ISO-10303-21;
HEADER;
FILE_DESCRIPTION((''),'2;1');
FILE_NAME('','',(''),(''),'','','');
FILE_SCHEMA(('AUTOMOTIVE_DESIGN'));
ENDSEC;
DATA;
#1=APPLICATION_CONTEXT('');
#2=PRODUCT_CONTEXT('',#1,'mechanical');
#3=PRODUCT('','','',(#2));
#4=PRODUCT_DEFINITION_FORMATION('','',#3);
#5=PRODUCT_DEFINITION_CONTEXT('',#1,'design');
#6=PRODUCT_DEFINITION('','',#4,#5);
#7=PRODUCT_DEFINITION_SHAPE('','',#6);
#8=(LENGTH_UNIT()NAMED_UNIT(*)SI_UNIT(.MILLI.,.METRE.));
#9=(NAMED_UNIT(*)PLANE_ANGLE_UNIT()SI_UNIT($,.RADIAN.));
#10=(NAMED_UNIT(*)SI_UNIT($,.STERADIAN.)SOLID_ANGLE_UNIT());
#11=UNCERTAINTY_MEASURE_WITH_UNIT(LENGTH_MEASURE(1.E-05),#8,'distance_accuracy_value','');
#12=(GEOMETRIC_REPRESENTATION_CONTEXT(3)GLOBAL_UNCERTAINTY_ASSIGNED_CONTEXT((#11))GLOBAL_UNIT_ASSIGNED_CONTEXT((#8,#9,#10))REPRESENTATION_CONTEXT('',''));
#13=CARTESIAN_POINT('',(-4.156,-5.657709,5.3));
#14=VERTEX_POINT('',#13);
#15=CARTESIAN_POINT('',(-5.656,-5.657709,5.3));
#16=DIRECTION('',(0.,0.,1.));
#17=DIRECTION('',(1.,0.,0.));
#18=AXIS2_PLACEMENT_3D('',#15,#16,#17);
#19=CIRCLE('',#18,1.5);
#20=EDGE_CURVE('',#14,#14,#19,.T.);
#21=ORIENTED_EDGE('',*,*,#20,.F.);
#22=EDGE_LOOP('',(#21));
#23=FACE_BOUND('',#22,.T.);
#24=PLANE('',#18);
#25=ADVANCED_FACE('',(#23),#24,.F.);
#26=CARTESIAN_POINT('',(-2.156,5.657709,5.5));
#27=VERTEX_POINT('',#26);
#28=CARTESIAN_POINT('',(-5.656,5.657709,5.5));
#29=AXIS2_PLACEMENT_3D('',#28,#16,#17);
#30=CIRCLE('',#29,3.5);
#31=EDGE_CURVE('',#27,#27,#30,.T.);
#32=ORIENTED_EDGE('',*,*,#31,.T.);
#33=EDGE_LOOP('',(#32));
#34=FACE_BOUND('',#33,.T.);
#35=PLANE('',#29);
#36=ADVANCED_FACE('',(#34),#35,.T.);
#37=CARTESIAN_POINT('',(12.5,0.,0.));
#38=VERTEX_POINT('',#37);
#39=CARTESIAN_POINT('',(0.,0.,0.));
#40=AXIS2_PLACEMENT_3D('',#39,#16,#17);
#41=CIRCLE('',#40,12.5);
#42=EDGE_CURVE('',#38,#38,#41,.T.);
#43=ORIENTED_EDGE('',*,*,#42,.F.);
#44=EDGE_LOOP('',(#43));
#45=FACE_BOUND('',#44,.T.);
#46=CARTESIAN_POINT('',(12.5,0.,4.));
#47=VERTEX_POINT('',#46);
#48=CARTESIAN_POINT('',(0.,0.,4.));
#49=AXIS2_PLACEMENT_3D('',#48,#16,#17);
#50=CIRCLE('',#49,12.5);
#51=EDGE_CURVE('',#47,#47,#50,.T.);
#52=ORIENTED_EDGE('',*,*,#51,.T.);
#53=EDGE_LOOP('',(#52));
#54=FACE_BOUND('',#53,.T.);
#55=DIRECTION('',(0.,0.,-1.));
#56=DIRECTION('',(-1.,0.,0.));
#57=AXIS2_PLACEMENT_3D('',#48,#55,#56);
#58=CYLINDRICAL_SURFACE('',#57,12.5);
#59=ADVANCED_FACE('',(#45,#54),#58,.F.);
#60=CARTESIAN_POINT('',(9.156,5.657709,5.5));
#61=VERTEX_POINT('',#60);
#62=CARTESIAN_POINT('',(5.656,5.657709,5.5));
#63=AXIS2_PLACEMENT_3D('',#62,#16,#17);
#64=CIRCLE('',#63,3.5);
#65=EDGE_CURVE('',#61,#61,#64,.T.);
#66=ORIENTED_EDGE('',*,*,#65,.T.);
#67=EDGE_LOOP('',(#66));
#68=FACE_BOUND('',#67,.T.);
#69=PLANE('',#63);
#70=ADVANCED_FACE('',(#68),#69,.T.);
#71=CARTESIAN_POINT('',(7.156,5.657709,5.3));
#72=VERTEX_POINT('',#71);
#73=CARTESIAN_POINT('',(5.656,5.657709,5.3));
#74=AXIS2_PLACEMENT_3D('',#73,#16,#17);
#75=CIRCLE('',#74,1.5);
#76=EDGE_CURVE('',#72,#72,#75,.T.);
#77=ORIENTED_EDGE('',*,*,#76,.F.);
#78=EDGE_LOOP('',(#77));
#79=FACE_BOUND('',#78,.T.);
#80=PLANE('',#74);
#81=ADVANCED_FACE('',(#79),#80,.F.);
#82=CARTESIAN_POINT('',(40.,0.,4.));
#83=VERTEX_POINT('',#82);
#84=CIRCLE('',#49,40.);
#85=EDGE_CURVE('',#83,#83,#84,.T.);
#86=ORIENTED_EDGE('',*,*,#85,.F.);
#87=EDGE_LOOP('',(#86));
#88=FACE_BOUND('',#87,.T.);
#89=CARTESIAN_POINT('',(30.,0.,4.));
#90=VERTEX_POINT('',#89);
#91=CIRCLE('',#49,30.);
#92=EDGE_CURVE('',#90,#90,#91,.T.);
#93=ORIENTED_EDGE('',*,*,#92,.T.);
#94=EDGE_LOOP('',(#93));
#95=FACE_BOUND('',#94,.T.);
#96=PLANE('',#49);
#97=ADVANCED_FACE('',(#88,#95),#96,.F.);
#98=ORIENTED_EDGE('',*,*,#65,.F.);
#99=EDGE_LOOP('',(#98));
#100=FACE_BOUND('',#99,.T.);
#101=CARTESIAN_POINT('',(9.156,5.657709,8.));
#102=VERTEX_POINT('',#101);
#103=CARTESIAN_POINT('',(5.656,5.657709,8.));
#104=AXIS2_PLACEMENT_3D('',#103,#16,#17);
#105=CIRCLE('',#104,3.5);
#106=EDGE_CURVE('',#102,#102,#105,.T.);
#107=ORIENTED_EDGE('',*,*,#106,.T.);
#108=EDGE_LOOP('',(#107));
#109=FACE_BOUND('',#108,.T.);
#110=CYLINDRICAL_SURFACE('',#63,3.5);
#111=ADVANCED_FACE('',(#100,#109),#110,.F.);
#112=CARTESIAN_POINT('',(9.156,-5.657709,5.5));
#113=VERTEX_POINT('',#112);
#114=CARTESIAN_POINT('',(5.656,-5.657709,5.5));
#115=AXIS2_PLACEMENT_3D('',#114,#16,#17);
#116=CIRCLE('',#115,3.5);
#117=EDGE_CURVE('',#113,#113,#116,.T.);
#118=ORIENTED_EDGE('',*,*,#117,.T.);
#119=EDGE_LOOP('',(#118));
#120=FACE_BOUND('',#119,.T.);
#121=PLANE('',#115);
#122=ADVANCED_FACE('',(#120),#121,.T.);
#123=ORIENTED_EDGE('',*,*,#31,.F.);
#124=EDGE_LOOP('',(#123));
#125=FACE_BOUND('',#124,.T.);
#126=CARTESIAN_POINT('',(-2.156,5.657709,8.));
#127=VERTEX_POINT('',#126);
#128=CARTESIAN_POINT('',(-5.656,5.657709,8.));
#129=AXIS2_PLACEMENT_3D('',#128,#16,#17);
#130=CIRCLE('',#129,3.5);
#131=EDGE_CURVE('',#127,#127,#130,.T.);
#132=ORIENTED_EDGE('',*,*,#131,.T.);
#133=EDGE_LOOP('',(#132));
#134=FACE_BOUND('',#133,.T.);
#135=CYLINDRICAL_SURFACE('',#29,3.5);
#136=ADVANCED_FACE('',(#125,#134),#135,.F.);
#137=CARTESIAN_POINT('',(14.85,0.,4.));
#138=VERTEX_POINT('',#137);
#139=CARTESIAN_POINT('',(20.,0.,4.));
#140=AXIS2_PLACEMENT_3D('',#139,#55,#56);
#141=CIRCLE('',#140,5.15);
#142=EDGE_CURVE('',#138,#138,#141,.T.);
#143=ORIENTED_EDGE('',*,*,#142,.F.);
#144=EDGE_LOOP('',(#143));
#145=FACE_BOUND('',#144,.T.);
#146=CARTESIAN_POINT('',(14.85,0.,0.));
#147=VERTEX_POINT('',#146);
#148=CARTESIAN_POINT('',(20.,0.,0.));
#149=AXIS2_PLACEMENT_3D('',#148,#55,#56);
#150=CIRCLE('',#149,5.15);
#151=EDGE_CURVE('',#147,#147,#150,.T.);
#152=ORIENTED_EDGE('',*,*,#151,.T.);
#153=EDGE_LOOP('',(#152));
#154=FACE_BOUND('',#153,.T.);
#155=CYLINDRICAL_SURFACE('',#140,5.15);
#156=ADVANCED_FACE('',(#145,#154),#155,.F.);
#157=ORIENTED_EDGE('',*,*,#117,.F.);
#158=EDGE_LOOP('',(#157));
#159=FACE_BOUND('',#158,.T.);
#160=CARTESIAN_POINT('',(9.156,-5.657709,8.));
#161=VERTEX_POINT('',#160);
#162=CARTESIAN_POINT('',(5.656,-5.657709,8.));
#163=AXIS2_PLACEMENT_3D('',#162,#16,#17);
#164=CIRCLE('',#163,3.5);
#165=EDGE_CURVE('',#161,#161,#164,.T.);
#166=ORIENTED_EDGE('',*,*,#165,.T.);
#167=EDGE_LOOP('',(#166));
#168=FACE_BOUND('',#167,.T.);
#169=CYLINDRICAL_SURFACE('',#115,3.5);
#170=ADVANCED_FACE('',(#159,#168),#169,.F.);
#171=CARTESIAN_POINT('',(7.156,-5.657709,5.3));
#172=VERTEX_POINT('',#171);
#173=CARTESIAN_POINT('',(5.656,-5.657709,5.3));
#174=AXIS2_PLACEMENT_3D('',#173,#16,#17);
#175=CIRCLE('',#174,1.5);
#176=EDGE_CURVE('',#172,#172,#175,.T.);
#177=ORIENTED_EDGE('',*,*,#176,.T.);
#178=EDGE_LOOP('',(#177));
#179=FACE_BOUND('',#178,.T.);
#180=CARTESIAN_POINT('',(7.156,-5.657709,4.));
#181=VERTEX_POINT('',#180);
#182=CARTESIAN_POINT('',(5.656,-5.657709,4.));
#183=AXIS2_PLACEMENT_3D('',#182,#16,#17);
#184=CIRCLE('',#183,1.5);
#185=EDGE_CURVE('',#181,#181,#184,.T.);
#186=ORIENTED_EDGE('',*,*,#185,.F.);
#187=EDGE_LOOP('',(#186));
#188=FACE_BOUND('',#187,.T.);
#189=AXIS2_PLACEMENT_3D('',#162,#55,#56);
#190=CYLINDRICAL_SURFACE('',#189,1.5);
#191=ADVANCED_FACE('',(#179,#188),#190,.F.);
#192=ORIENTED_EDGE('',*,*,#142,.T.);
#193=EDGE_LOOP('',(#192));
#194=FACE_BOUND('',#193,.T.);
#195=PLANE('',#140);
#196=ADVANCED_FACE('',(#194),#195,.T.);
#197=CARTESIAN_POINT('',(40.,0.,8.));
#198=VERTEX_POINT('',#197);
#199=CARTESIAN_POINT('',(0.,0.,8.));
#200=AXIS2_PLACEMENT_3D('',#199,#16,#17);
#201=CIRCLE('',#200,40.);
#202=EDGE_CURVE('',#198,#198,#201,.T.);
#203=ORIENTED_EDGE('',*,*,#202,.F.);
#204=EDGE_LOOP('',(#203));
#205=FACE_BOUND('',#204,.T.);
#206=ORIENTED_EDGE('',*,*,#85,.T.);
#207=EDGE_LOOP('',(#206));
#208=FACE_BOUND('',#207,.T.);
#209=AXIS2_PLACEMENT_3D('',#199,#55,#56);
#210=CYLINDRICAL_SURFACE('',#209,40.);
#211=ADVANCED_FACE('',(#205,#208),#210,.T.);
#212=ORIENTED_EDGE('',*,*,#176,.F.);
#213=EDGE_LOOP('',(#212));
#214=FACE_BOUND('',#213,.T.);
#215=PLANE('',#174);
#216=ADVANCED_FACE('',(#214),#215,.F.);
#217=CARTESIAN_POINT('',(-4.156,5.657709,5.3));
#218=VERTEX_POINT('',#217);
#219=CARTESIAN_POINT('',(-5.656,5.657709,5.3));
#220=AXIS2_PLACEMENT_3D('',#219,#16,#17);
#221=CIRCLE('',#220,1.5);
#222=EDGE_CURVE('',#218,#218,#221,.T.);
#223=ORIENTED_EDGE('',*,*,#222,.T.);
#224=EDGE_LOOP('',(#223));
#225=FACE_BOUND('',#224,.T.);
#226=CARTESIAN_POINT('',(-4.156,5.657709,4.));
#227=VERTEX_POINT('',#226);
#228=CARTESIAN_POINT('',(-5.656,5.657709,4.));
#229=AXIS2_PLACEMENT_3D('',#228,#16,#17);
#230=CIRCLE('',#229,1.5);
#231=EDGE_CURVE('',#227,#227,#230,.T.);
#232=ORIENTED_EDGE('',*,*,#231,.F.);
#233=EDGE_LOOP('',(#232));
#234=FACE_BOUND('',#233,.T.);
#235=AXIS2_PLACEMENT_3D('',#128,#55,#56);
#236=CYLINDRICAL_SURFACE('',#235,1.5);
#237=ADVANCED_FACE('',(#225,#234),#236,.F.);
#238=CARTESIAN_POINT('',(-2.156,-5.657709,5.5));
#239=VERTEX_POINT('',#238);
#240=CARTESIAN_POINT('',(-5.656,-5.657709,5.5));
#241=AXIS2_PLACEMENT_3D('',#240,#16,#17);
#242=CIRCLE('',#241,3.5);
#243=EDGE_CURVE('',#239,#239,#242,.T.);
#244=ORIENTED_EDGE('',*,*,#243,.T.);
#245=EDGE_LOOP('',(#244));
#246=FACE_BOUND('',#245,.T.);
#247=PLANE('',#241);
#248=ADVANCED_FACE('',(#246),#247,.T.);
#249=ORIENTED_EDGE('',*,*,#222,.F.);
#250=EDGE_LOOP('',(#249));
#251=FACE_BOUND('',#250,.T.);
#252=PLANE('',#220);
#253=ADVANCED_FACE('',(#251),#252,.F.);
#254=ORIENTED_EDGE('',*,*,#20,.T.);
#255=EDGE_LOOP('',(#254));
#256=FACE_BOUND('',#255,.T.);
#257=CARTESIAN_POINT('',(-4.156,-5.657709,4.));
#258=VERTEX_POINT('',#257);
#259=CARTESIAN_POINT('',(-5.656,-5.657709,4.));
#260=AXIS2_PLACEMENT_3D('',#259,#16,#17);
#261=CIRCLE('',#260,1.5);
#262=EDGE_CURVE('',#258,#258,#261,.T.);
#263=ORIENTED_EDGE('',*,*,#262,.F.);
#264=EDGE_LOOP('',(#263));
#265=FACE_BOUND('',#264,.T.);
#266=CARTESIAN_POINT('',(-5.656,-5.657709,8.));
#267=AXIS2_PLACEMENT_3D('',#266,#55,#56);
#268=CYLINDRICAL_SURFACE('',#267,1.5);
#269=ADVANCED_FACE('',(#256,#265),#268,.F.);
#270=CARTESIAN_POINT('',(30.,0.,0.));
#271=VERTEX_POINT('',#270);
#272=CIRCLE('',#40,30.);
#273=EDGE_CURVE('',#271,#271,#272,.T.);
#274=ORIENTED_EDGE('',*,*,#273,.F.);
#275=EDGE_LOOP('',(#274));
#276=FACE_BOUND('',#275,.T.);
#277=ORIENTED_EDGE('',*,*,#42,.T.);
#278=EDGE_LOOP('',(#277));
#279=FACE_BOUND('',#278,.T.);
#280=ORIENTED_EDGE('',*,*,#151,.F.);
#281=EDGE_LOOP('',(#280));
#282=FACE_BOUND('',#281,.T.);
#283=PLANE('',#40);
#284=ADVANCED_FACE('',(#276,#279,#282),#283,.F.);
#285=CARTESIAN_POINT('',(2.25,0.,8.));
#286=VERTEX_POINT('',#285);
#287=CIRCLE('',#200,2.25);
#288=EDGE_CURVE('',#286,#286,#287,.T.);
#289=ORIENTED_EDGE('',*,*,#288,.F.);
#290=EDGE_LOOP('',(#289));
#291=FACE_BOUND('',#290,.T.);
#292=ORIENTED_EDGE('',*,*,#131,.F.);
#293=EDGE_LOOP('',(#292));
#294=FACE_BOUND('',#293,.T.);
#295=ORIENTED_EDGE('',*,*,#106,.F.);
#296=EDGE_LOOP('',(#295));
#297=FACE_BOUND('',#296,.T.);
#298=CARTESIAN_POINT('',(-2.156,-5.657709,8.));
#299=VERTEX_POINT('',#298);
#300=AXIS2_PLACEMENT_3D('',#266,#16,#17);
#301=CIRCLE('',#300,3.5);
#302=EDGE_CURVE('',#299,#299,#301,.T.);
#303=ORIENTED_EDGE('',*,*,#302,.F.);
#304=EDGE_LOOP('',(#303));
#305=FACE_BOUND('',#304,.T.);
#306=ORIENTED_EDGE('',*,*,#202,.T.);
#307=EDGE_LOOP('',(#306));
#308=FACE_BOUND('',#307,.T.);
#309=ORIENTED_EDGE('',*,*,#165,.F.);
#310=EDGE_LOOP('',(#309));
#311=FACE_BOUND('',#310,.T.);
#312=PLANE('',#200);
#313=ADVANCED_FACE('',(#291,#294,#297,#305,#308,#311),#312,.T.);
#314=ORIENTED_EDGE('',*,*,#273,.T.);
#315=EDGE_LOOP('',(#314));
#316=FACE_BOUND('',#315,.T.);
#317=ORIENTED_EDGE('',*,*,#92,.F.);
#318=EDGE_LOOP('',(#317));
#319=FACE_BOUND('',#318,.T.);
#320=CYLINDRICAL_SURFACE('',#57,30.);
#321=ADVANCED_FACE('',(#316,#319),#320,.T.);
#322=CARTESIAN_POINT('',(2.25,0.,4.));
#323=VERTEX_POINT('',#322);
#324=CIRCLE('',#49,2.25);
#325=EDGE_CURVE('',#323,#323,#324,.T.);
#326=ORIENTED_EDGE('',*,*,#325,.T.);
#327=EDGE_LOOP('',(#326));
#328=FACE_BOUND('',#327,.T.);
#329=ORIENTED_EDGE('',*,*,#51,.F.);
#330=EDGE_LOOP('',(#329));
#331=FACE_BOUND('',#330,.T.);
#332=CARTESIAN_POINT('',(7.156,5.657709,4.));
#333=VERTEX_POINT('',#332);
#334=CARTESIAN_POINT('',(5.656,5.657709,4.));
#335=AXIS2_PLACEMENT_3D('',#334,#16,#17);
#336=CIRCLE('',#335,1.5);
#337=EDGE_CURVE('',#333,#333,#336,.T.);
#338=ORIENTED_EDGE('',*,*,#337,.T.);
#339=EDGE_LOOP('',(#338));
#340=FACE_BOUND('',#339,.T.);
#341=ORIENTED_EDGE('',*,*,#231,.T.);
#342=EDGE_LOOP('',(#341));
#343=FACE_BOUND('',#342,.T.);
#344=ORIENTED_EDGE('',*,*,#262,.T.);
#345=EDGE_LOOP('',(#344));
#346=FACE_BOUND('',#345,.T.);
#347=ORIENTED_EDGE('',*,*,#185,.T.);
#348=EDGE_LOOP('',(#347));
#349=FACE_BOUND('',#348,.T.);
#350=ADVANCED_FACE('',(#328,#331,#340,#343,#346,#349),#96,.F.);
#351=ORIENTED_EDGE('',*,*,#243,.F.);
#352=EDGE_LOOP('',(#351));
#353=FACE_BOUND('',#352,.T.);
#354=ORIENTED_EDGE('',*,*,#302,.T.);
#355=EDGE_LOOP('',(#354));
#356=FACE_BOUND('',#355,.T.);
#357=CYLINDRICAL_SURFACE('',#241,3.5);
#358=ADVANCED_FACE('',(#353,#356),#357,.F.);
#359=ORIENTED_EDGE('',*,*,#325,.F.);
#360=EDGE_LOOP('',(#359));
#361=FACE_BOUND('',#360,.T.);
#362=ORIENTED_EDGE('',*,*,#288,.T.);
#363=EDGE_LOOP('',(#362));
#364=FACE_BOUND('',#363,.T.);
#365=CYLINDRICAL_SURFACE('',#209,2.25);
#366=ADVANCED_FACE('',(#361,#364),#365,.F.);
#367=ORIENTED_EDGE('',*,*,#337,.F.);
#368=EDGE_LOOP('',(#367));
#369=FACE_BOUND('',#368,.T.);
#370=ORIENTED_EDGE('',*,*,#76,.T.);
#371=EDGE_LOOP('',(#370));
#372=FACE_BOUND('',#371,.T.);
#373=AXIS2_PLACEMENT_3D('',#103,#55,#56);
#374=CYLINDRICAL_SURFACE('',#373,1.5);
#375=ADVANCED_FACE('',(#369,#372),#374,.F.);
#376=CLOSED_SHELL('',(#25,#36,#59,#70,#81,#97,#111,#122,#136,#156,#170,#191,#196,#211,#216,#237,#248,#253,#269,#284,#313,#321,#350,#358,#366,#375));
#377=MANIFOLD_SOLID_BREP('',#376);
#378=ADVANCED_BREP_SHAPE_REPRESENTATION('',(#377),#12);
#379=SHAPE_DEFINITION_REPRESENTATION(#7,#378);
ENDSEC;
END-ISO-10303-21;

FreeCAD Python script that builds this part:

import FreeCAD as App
import Part
import Sketcher
from FreeCAD import Vector

doc = App.newDocument("Part")
params = doc.addObject("Spreadsheet::Sheet", "Params")
for row, (alias, value) in enumerate([
    ("sketch1_diameter", "60 mm"),
    ("sketch1_diameter2", "25 mm"),
    ("pad1_length", "4 mm"),
    ("sketch2_diameter", "80 mm"),
    ("sketch2_diameter2", "3 mm"),
    ("sketch2_diameter3", "4.5 mm"),
    ("pad2_length", "4 mm"),
    ("sketch3_diameter", "7 mm"),
    ("pocket1_length", "2.5 mm"),
    ("sketch4_diameter", "10.3 mm"),
    ("pocket2_length", "4 mm"),
    ("sketch5_diameter", "7 mm"),
    ("pad3_length", "0.2 mm"),
], start=1):
    params.set(f"A{row}", alias)
    params.set(f"B{row}", "=" + value)
    params.setAlias(f"B{row}", alias)

body = doc.addObject("PartDesign::Body", "Body")

# Sketch on XY plane
sketch1 = body.newObject("Sketcher::SketchObject", "Sketch")
sketch1.AttachmentSupport = (doc.getObject("XY_Plane"), [""])
sketch1.MapMode = "FlatFace"
sketch1.addGeometry(Part.Circle(Vector(0, 0, 0), Vector(0, 0, 1), 30), False)
sketch1.addGeometry(Part.Circle(Vector(0, 0, 0), Vector(0, 0, 1), 12), False)
sketch1.addConstraint(Sketcher.Constraint("Coincident", 0, 3, -1, 1))
sketch1.addConstraint(Sketcher.Constraint("Coincident", 1, 3, -1, 1))
sketch1.addConstraint(Sketcher.Constraint("Diameter", 0, 60.0))
sketch1.addConstraint(Sketcher.Constraint("Diameter", 1, 25.0))
sketch1.setExpression("Constraints[2]", "Params.sketch1_diameter")
sketch1.setExpression("Constraints[3]", "Params.sketch1_diameter2")
pad1 = body.newObject("PartDesign::Pad", "Pad")
pad1.Profile = sketch1
pad1.setExpression("Length", "Params.pad1_length")

# Sketch on XY plane
sketch2 = body.newObject("Sketcher::SketchObject", "Sketch001")
sketch2.AttachmentSupport = (doc.getObject("XY_Plane"), [""])
sketch2.MapMode = "FlatFace"
sketch2.AttachmentOffset = App.Placement(Vector(0, 0, 4), App.Rotation())
sketch2.addGeometry(Part.Circle(Vector(0, 0, 0), Vector(0, 0, 1), 40), False)
sketch2.addGeometry(Part.Circle(Vector(-5.7, -5.7, 0), Vector(0, 0, 1), 1.5), False)
sketch2.addGeometry(Part.Circle(Vector(5.7, -5.7, 0), Vector(0, 0, 1), 1.5), False)
sketch2.addGeometry(Part.Circle(Vector(-5.7, 5.7, 0), Vector(0, 0, 1), 1.5), False)
sketch2.addGeometry(Part.Circle(Vector(0, 0, 0), Vector(0, 0, 1), 2.2), False)
sketch2.addGeometry(Part.Circle(Vector(5.7, 5.7, 0), Vector(0, 0, 1), 1.5), False)
sketch2.addConstraint(Sketcher.Constraint("Coincident", 0, 3, -1, 1))
sketch2.addConstraint(Sketcher.Constraint("Coincident", 4, 3, -1, 1))
sketch2.addConstraint(Sketcher.Constraint("Equal", 1, 2))
sketch2.addConstraint(Sketcher.Constraint("Equal", 2, 3))
sketch2.addConstraint(Sketcher.Constraint("Equal", 3, 5))
sketch2.addConstraint(Sketcher.Constraint("Symmetric", 2, 3, 3, 3, -1, 1))
sketch2.addConstraint(Sketcher.Constraint("Symmetric", 1, 3, 5, 3, -1, 1))
sketch2.addConstraint(Sketcher.Constraint("Symmetric", 1, 3, 2, 3, -2))
sketch2.addConstraint(Sketcher.Constraint("Diameter", 0, 80.0))
sketch2.addConstraint(Sketcher.Constraint("Diameter", 1, 3.0))
sketch2.addConstraint(Sketcher.Constraint("Diameter", 4, 4.5))
sketch2.addConstraint(Sketcher.Constraint("DistanceX", 1, 3, -1, 1, 5.656))
sketch2.addConstraint(Sketcher.Constraint("DistanceY", 1, 3, -1, 1, 5.657709))
sketch2.setExpression("Constraints[8]", "Params.sketch2_diameter")
sketch2.setExpression("Constraints[9]", "Params.sketch2_diameter2")
sketch2.setExpression("Constraints[10]", "Params.sketch2_diameter3")
pad2 = body.newObject("PartDesign::Pad", "Pad001")
pad2.Profile = sketch2
pad2.setExpression("Length", "Params.pad2_length")

# Sketch on XY plane
sketch3 = body.newObject("Sketcher::SketchObject", "Sketch002")
sketch3.AttachmentSupport = (doc.getObject("XY_Plane"), [""])
sketch3.MapMode = "FlatFace"
sketch3.AttachmentOffset = App.Placement(Vector(0, 0, 8), App.Rotation())
sketch3.addGeometry(Part.Circle(Vector(-5.7, 5.7, 0), Vector(0, 0, 1), 3.5), False)
sketch3.addGeometry(Part.Circle(Vector(5.7, 5.7, 0), Vector(0, 0, 1), 3.5), False)
sketch3.addGeometry(Part.Circle(Vector(5.7, -5.7, 0), Vector(0, 0, 1), 3.5), False)
sketch3.addGeometry(Part.Circle(Vector(-5.7, -5.7, 0), Vector(0, 0, 1), 3.5), False)
sketch3.addConstraint(Sketcher.Constraint("Equal", 0, 1))
sketch3.addConstraint(Sketcher.Constraint("Equal", 1, 2))
sketch3.addConstraint(Sketcher.Constraint("Equal", 2, 3))
sketch3.addConstraint(Sketcher.Constraint("Symmetric", 0, 3, 2, 3, -1, 1))
sketch3.addConstraint(Sketcher.Constraint("Symmetric", 1, 3, 3, 3, -1, 1))
sketch3.addConstraint(Sketcher.Constraint("Symmetric", 0, 3, 1, 3, -2))
sketch3.addConstraint(Sketcher.Constraint("Diameter", 0, 7.0))
sketch3.addConstraint(Sketcher.Constraint("DistanceX", 0, 3, -1, 1, 5.656))
sketch3.addConstraint(Sketcher.Constraint("DistanceY", -1, 1, 0, 3, 5.657709))
sketch3.setExpression("Constraints[6]", "Params.sketch3_diameter")
pocket1 = body.newObject("PartDesign::Pocket", "Pocket")
pocket1.Profile = sketch3
pocket1.setExpression("Length", "Params.pocket1_length")

# Sketch on XY plane
sketch4 = body.newObject("Sketcher::SketchObject", "Sketch003")
sketch4.AttachmentSupport = (doc.getObject("XY_Plane"), [""])
sketch4.MapMode = "FlatFace"
sketch4.addGeometry(Part.Circle(Vector(20, 0, 0), Vector(0, 0, 1), 5), False)
sketch4.addConstraint(Sketcher.Constraint("PointOnObject", 0, 3, -1))
sketch4.addConstraint(Sketcher.Constraint("Diameter", 0, 10.3))
sketch4.addConstraint(Sketcher.Constraint("DistanceX", -1, 1, 0, 3, 20.0))
sketch4.setExpression("Constraints[1]", "Params.sketch4_diameter")
pocket2 = body.newObject("PartDesign::Pocket", "Pocket001")
pocket2.Profile = sketch4
pocket2.setExpression("Length", "Params.pocket2_length")
pocket2.Reversed = True

# Sketch on XY plane
sketch5 = body.newObject("Sketcher::SketchObject", "Sketch004")
sketch5.AttachmentSupport = (doc.getObject("XY_Plane"), [""])
sketch5.MapMode = "FlatFace"
sketch5.AttachmentOffset = App.Placement(Vector(0, 0, 5.5), App.Rotation())
sketch5.addGeometry(Part.Circle(Vector(-5.7, 5.7, 0), Vector(0, 0, 1), 3.5), False)
sketch5.addGeometry(Part.Circle(Vector(5.7, 5.7, 0), Vector(0, 0, 1), 3.5), False)
sketch5.addGeometry(Part.Circle(Vector(-5.7, -5.7, 0), Vector(0, 0, 1), 3.5), False)
sketch5.addGeometry(Part.Circle(Vector(5.7, -5.7, 0), Vector(0, 0, 1), 3.5), False)
sketch5.addConstraint(Sketcher.Constraint("Equal", 0, 1))
sketch5.addConstraint(Sketcher.Constraint("Equal", 1, 2))
sketch5.addConstraint(Sketcher.Constraint("Equal", 2, 3))
sketch5.addConstraint(Sketcher.Constraint("Symmetric", 1, 3, 2, 3, -1, 1))
sketch5.addConstraint(Sketcher.Constraint("Symmetric", 0, 3, 3, 3, -1, 1))
sketch5.addConstraint(Sketcher.Constraint("Symmetric", 0, 3, 1, 3, -2))
sketch5.addConstraint(Sketcher.Constraint("Diameter", 0, 7.0))
sketch5.addConstraint(Sketcher.Constraint("DistanceX", 0, 3, -1, 1, 5.656))
sketch5.addConstraint(Sketcher.Constraint("DistanceY", -1, 1, 0, 3, 5.657709))
sketch5.setExpression("Constraints[6]", "Params.sketch5_diameter")
pad3 = body.newObject("PartDesign::Pad", "Pad002")
pad3.Profile = sketch5
pad3.setExpression("Length", "Params.pad3_length")
pad3.Reversed = True

doc.recompute()
